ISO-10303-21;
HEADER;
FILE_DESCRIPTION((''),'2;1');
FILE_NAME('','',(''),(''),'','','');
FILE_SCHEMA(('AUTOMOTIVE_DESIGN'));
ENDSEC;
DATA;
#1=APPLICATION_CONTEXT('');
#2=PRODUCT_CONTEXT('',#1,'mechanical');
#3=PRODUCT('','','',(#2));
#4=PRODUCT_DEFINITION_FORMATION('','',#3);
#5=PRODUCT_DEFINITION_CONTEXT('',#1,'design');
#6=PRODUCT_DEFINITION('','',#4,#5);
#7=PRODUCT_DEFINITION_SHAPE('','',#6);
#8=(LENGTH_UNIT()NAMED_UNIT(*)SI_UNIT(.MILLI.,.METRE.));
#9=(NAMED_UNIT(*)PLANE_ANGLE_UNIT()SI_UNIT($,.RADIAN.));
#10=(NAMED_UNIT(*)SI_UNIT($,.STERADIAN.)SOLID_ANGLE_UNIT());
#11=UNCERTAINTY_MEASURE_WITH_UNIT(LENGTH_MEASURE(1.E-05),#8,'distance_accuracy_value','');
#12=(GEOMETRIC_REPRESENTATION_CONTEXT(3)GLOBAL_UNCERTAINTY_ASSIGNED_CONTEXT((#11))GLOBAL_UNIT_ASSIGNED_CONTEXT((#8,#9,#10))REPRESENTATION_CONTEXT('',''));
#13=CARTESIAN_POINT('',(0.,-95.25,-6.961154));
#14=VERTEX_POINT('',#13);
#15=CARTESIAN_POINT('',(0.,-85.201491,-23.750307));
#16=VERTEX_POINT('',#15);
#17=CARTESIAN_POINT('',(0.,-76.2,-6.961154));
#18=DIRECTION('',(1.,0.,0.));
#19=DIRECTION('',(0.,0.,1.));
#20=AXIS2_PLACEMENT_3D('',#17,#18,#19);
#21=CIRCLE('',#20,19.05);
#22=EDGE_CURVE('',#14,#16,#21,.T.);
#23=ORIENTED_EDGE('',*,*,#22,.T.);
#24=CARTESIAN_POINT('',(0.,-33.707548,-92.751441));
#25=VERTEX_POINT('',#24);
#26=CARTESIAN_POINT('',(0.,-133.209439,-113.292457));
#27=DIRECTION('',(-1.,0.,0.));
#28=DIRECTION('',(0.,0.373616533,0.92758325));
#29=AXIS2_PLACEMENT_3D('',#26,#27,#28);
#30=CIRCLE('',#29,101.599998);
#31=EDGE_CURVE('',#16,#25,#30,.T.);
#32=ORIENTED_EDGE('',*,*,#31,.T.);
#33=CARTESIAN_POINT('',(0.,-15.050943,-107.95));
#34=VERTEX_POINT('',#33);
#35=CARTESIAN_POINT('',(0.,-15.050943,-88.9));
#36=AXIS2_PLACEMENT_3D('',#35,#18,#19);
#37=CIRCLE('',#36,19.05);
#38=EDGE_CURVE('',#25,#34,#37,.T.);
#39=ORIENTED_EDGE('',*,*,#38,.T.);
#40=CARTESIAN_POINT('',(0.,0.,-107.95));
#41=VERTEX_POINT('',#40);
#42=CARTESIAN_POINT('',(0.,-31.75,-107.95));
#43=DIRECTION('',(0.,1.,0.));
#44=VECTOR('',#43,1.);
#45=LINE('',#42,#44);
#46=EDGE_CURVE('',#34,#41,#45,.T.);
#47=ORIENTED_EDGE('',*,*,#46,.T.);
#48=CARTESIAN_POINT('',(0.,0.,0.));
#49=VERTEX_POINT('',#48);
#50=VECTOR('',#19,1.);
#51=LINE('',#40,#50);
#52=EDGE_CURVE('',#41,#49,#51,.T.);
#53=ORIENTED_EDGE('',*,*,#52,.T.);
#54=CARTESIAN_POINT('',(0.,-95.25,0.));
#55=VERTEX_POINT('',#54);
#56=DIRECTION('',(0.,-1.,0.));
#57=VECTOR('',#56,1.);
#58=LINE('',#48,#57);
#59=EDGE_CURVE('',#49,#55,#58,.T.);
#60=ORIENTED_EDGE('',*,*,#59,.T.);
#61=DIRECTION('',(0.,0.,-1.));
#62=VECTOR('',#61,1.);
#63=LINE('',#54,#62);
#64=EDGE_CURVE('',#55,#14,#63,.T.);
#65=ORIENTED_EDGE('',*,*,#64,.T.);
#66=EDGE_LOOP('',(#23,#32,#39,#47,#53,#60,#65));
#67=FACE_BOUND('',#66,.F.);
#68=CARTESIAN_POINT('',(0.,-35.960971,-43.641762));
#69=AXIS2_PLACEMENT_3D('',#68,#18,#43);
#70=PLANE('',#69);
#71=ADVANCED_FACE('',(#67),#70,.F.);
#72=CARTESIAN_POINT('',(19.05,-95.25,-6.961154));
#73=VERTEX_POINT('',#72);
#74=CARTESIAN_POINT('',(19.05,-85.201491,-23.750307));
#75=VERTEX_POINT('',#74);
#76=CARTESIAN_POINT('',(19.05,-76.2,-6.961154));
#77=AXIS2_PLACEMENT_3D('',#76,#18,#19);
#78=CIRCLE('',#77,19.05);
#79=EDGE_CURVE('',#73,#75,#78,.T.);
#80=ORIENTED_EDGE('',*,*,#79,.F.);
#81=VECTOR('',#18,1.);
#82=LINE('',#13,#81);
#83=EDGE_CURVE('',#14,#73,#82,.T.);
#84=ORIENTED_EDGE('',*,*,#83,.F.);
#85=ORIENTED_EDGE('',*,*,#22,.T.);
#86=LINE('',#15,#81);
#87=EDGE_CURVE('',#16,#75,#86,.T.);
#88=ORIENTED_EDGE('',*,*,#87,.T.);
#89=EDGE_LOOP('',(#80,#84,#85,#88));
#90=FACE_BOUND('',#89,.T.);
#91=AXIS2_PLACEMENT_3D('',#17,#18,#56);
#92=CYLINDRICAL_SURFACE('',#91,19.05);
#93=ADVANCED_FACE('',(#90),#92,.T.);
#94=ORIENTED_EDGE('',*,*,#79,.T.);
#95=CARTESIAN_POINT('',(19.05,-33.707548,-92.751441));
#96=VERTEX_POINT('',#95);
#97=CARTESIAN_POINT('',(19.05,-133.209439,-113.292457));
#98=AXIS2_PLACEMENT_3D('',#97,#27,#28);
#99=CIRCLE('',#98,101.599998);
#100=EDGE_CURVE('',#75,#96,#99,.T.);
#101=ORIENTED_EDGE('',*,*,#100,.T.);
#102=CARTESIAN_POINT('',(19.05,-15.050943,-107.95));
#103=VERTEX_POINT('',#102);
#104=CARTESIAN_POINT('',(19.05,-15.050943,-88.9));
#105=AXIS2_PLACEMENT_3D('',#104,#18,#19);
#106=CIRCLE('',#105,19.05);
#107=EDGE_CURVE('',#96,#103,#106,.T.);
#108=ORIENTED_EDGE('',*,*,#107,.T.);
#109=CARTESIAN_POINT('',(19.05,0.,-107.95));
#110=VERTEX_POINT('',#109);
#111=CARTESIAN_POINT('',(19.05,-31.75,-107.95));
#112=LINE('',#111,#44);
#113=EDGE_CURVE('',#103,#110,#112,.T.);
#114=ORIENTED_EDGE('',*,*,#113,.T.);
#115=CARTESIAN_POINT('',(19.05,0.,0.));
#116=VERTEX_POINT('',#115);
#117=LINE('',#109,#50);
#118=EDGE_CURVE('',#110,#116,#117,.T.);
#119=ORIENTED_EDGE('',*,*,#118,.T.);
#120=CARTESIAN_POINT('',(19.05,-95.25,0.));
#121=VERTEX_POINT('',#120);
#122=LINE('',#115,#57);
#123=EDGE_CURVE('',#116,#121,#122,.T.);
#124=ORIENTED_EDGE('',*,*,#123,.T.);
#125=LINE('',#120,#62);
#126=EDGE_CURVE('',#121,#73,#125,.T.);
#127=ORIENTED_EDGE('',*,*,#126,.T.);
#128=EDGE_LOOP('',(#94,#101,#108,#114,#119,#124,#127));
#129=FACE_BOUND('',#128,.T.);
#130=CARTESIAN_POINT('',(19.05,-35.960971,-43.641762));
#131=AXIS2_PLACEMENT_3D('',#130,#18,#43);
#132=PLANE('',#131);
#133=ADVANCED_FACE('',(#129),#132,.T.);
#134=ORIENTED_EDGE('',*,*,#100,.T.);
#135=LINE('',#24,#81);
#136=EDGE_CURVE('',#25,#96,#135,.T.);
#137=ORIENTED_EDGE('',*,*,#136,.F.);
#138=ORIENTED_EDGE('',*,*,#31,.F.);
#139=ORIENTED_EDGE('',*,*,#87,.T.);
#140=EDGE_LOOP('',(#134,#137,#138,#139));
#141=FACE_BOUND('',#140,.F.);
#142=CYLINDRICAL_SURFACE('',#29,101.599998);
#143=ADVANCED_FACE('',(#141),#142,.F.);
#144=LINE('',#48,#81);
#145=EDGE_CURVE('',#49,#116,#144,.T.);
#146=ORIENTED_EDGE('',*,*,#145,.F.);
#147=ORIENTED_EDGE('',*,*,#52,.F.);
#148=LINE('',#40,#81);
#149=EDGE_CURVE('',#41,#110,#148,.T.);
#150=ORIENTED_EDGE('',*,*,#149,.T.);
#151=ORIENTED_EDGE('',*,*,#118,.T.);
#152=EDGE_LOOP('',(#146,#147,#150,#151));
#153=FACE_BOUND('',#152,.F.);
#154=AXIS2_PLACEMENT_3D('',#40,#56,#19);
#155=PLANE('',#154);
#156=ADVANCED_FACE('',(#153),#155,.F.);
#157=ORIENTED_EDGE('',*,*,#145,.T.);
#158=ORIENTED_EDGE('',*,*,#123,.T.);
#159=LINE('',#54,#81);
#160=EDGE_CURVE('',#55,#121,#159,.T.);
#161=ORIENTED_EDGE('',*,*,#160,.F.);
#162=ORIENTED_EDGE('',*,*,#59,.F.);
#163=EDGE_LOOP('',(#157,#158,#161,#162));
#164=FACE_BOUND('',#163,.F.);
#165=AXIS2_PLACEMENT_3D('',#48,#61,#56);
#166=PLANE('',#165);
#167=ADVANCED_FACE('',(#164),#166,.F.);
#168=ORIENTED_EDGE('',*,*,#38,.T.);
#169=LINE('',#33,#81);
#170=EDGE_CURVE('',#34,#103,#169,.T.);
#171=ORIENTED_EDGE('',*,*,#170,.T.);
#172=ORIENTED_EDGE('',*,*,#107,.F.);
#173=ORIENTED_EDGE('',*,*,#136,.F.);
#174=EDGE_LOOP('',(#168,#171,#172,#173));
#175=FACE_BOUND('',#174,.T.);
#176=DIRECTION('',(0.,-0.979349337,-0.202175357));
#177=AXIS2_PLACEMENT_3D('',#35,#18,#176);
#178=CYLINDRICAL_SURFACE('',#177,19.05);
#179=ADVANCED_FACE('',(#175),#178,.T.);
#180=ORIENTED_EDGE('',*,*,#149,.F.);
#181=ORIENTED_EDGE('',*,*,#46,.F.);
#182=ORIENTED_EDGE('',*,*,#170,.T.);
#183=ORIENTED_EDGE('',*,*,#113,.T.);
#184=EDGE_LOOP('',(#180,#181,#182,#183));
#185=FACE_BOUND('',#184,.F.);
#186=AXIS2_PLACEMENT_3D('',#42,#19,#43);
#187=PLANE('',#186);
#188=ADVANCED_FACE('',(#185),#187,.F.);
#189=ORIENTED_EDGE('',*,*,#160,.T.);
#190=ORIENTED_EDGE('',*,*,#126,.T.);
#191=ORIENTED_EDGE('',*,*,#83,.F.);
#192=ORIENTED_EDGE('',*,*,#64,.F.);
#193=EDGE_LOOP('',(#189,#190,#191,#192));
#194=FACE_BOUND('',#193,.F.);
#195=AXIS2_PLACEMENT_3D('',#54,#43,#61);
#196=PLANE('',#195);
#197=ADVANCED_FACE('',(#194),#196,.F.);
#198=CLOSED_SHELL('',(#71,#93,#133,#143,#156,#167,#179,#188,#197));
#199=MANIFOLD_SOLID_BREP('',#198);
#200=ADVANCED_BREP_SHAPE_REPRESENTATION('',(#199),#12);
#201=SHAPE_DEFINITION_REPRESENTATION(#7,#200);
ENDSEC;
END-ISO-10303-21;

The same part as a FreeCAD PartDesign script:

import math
import FreeCAD as App
import Part
import Sketcher
from FreeCAD import Vector
Q = App.Units.Quantity


def edges_at(feature, points):
    """Names of the edges that pass closest to the given points."""
    edges = feature.Shape.Edges
    near = lambda p: min(range(len(edges)), key=lambda i: edges[i].distToShape(Part.Vertex(*p))[0])
    return sorted({f"Edge{near(p) + 1}" for p in points})

doc = App.newDocument("Part")
body = doc.addObject("PartDesign::Body", "Body")

sketch1 = body.newObject("Sketcher::SketchObject", "Sketch")
sketch1.AttachmentSupport = (doc.getObject("YZ_Plane"), [""])
sketch1.MapMode = "FlatFace"
sketch1.addGeometry(Part.LineSegment(Vector(0, -107.95, 0), Vector(0, 0, 0)), False)
sketch1.addGeometry(Part.LineSegment(Vector(0, 0, 0), Vector(-95.25, 0, 0)), False)
sketch1.addGeometry(Part.LineSegment(Vector(-95.25, 0, 0), Vector(-95.25, -19.05, 0)), False)
sketch1.addGeometry(Part.ArcOfCircle(Part.Circle(Vector(-133.209439, -113.292457, 0), Vector(0, 0, 1), 101.599998), math.radians(3.014188), math.radians(68.061168)), False)
sketch1.addGeometry(Part.LineSegment(Vector(-31.75, -107.95, 0), Vector(0, -107.95, 0)), False)
sketch1.addConstraint(Sketcher.Constraint("Coincident", 0, 2, 1, 1))
sketch1.addConstraint(Sketcher.Constraint("Coincident", 1, 2, 2, 1))
sketch1.addConstraint(Sketcher.Constraint("Coincident", 2, 2, 3, 2))
sketch1.addConstraint(Sketcher.Constraint("Coincident", 3, 1, 4, 1))
sketch1.addConstraint(Sketcher.Constraint("Coincident", 4, 2, 0, 1))
sketch1.addConstraint(Sketcher.Constraint("Vertical", 0))
sketch1.addConstraint(Sketcher.Constraint("Horizontal", 1))
sketch1.addConstraint(Sketcher.Constraint("Vertical", 2))
sketch1.addConstraint(Sketcher.Constraint("Horizontal", 4))
sketch1.addConstraint(Sketcher.Constraint("Coincident", 0, 2, -1, 1))
sketch1.addConstraint(Sketcher.Constraint("Radius", 3, Q("3.9999999 in")))
sketch1.addConstraint(Sketcher.Constraint("DistanceX", 1, 2, 1, 1, Q("3.75 in")))
sketch1.addConstraint(Sketcher.Constraint("DistanceX", 4, 1, 4, 2, Q("1.25 in")))
sketch1.addConstraint(Sketcher.Constraint("DistanceY", 0, 1, 0, 2, Q("4.25 in")))
sketch1.addConstraint(Sketcher.Constraint("DistanceY", 2, 2, 2, 1, Q("0.75 in")))
pad1 = body.newObject("PartDesign::Pad", "Pad")
pad1.Profile = sketch1
pad1.Length = Q("0.75 in")
doc.recompute()

fillet = body.newObject("PartDesign::Fillet", "Fillet")
fillet.Base = (pad1, edges_at(pad1, [(9.525, -95.25, -19.05), (9.525, -31.75, -107.95)]))
fillet.Radius = Q("0.75 in")

doc.recompute()
